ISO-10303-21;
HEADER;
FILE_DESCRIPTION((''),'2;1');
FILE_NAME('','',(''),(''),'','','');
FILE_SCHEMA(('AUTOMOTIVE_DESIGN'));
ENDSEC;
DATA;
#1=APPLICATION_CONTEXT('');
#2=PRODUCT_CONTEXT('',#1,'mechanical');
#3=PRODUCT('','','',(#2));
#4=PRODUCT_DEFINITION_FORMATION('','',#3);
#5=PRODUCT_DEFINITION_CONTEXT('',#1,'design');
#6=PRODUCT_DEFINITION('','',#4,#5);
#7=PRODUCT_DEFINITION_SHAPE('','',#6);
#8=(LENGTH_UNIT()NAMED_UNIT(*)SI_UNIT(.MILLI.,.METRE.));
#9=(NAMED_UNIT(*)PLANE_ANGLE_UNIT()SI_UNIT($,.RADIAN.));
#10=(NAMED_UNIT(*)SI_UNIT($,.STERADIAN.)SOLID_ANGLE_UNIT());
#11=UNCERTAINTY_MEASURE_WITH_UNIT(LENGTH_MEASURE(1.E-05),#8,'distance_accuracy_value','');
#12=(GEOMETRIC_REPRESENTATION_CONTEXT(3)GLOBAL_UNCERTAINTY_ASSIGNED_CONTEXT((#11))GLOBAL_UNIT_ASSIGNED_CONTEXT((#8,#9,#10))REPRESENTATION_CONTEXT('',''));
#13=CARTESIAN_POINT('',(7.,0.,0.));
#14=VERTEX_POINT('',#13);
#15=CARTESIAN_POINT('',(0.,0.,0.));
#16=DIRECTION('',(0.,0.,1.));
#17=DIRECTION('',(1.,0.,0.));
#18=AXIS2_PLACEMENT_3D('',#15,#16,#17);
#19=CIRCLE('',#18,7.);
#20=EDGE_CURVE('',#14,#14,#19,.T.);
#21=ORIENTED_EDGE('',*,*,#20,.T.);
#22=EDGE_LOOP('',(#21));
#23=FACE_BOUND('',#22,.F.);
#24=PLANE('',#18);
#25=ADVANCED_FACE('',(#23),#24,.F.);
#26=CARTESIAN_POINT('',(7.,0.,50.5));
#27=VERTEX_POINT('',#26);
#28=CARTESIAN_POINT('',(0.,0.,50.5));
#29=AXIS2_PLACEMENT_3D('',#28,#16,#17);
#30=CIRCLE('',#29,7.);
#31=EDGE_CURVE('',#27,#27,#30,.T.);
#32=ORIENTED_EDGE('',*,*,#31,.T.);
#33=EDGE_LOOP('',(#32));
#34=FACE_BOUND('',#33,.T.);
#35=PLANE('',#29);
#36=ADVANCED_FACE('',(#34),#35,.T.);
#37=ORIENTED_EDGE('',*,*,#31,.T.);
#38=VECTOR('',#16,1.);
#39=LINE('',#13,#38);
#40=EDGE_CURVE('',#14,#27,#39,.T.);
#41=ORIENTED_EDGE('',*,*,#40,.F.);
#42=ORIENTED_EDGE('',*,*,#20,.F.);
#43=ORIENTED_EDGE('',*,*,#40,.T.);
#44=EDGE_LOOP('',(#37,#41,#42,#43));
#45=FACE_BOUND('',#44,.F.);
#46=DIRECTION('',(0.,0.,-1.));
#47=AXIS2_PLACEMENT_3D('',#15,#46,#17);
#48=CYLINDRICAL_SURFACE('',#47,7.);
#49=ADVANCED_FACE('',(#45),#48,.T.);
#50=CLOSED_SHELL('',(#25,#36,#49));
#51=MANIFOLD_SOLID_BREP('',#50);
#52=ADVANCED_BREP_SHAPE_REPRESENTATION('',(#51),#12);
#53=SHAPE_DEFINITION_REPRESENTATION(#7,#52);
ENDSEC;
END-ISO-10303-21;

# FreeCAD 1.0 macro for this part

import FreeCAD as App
import Part
import Sketcher

V = App.Vector

doc = App.newDocument("Part")
body = doc.addObject("PartDesign::Body", "Body")

# Sketch on XY plane
sketch1 = body.newObject("Sketcher::SketchObject", "Sketch")
sketch1.AttachmentSupport = (doc.getObject("XY_Plane"), [""])
sketch1.MapMode = "FlatFace"
sketch1.addGeometry(Part.Circle(V(0, 0, 0), V(0, 0, 1), 7), False)
sketch1.addConstraint([
    Sketcher.Constraint("Coincident", 0, 3, -1, 1),
    Sketcher.Constraint("Diameter", 0, 14.0),
])
pad1 = body.newObject("PartDesign::Pad", "Pad")
pad1.Profile = sketch1
pad1.Length = 50.5

doc.recompute()
